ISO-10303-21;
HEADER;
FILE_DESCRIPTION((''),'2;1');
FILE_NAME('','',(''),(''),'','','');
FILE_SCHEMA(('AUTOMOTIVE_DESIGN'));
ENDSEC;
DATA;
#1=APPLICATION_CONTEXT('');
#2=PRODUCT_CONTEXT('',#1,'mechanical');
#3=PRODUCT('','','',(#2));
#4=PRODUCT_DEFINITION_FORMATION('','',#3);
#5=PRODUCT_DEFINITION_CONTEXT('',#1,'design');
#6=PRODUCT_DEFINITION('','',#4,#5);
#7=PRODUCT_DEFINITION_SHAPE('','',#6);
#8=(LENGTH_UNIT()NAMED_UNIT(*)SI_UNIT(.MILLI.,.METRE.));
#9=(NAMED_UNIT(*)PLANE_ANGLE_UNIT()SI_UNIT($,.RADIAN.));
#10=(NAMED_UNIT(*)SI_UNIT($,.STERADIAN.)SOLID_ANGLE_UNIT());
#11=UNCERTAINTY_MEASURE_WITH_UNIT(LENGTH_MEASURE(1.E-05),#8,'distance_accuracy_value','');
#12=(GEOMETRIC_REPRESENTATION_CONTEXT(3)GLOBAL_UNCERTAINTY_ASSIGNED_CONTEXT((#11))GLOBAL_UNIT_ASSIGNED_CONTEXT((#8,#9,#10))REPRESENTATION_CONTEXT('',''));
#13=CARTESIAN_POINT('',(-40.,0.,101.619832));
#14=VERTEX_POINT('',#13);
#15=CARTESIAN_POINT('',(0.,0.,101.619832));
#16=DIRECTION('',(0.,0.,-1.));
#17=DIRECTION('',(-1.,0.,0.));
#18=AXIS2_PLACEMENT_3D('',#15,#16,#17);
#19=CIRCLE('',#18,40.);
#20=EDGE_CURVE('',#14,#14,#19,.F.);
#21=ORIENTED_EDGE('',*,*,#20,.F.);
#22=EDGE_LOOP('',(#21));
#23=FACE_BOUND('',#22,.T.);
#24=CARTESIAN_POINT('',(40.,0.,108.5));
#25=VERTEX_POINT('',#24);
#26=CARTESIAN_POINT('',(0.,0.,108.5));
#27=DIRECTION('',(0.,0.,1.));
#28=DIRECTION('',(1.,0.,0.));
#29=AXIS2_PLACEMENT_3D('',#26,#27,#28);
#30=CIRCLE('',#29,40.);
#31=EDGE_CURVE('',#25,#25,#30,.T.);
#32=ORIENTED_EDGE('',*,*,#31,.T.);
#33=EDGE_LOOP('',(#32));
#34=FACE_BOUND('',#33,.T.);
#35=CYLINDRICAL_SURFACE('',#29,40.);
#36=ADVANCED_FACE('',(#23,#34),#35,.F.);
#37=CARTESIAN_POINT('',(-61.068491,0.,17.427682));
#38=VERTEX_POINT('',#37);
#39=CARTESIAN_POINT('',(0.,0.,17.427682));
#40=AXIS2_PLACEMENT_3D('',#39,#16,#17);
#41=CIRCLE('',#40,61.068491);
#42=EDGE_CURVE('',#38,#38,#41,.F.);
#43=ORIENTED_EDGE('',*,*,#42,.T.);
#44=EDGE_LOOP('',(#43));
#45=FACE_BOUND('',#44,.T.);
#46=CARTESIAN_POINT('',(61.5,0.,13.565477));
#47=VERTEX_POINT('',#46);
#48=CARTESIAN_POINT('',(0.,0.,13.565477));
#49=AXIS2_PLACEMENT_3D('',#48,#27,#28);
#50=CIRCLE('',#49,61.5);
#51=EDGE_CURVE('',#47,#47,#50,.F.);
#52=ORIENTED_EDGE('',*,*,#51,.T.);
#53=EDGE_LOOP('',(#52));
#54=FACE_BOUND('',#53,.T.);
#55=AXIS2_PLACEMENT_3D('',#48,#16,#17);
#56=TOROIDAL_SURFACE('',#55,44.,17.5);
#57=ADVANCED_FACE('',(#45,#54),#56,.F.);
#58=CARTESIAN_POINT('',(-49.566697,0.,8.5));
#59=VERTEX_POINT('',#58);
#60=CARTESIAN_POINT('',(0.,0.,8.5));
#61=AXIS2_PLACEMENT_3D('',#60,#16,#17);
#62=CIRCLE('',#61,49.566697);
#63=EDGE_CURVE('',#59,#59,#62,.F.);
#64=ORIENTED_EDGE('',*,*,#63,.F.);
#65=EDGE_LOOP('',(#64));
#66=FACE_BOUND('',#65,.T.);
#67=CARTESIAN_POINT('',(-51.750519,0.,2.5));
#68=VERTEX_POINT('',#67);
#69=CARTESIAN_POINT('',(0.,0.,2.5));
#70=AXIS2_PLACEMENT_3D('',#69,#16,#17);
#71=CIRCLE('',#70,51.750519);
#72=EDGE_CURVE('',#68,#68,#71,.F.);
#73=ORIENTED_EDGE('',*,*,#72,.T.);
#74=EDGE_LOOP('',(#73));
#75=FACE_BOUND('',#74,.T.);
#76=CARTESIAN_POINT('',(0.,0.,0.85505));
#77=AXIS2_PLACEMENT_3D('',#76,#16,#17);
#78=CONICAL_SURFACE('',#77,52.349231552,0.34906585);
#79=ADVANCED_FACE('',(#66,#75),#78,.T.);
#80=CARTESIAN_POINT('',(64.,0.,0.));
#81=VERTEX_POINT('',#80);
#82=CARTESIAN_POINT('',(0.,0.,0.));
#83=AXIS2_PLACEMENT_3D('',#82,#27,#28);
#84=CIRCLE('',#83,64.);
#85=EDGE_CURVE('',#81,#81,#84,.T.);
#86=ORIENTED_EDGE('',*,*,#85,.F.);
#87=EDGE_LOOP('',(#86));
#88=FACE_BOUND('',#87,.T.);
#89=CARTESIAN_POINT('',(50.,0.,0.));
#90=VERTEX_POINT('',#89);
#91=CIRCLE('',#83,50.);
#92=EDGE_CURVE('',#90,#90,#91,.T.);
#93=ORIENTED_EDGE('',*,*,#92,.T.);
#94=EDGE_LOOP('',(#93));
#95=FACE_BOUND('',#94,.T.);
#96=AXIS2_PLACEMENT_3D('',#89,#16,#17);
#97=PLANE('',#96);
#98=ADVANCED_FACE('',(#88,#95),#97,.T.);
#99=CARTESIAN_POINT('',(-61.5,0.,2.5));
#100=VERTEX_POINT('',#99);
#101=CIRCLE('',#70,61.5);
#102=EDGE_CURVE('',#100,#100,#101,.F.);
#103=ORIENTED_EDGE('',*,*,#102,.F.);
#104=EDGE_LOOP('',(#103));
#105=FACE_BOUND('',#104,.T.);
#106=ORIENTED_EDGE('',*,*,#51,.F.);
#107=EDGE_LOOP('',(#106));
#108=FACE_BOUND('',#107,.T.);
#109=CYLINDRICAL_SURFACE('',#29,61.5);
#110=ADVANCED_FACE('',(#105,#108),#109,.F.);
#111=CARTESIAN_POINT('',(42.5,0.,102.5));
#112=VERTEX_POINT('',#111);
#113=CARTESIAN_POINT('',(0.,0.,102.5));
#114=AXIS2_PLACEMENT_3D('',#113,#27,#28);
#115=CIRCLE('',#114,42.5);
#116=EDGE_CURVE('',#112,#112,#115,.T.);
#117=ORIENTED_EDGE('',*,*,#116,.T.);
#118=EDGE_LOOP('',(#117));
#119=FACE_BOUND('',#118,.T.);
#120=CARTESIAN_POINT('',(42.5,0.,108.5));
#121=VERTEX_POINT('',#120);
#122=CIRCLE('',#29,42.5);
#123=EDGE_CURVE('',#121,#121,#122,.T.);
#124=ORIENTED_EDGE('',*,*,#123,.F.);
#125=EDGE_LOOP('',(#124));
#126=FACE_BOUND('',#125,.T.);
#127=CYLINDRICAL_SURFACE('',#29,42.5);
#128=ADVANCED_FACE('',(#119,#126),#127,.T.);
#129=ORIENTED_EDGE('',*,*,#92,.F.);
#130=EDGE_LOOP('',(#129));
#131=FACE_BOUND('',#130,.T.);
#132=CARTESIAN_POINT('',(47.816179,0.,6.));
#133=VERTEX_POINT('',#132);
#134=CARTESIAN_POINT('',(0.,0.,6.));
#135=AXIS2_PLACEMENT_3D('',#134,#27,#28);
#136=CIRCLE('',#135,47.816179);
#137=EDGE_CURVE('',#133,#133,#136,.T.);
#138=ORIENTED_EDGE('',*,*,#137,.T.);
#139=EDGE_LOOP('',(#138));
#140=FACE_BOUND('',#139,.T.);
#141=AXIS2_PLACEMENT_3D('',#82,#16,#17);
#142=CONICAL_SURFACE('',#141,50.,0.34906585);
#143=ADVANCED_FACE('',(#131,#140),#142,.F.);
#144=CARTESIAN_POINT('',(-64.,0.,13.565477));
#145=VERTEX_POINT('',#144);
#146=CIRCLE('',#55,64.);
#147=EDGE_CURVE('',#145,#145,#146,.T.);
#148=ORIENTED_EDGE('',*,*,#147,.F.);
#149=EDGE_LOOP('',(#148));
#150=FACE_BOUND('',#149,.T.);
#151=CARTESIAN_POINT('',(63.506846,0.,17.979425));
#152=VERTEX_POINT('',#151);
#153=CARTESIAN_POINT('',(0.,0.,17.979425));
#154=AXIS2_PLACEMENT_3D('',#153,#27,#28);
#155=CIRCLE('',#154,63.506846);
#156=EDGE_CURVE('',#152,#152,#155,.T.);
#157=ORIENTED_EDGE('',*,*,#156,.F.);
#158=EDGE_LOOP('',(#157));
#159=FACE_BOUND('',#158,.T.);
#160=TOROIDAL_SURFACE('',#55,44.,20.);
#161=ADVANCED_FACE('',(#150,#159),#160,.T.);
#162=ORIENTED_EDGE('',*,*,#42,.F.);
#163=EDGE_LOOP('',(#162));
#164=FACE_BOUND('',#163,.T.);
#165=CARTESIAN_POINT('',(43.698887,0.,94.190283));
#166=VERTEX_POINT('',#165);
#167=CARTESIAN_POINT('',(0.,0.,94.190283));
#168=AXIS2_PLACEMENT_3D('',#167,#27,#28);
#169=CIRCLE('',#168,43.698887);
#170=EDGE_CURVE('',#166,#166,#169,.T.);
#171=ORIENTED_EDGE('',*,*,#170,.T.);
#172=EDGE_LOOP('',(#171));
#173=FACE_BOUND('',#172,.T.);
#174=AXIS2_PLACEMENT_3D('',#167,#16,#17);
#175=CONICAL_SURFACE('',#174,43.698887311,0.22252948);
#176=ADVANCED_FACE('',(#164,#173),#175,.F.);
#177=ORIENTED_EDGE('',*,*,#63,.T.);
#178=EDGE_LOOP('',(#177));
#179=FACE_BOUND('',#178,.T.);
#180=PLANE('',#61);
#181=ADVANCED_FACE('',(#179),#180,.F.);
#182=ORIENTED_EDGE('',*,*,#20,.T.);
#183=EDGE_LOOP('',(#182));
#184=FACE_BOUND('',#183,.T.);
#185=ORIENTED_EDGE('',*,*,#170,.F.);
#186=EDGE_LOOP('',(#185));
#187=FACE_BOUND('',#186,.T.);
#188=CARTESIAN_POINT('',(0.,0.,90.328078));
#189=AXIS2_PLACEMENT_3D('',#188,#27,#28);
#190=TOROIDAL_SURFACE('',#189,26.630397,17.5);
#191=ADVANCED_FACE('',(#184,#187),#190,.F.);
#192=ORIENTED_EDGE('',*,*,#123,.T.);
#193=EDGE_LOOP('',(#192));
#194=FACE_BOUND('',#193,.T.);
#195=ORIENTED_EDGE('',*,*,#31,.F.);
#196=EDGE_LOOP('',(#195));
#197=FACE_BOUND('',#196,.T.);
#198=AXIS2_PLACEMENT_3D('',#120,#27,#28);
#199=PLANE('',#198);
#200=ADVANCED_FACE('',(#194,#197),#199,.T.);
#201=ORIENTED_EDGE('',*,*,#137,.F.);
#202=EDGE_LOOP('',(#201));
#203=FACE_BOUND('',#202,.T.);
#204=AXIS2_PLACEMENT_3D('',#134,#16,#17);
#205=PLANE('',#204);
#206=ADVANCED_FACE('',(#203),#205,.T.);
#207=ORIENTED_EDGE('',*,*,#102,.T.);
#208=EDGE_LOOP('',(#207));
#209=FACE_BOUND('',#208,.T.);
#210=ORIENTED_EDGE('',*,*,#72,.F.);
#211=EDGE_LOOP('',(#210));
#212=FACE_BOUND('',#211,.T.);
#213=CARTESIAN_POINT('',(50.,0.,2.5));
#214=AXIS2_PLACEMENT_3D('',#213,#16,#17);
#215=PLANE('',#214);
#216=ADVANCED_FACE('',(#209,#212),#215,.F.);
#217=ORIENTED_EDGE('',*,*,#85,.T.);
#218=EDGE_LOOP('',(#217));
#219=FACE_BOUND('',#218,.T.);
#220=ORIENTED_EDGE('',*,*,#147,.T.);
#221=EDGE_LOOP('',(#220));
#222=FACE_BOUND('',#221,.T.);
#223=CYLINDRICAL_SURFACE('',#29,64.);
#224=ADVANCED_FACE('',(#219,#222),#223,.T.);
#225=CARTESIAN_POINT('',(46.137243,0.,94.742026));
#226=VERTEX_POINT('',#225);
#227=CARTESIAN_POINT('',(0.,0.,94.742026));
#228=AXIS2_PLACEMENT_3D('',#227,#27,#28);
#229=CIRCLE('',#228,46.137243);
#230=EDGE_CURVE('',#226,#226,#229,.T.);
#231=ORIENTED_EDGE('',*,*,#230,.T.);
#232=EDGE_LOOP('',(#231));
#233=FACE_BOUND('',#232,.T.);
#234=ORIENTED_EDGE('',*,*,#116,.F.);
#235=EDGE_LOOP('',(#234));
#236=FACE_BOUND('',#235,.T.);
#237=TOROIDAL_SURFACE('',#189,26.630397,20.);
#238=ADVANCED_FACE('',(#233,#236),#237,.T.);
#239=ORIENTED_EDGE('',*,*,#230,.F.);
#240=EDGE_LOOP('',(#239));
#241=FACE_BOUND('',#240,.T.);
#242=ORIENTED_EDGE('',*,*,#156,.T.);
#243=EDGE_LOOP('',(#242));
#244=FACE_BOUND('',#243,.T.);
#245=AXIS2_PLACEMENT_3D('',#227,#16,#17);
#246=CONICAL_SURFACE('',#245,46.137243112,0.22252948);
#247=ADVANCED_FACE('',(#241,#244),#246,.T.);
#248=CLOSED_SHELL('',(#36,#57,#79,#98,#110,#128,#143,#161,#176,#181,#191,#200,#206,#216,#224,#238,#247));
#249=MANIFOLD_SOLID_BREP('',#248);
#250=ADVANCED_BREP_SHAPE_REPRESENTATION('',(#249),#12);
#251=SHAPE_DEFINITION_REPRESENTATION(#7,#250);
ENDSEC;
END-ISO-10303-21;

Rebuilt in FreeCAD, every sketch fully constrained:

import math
import FreeCAD as App
import Part
import Sketcher
from FreeCAD import Vector
Q = App.Units.Quantity


def edges_at(feature, points):
    """Names of the edges that pass closest to the given points."""
    edges = feature.Shape.Edges
    near = lambda p: min(range(len(edges)), key=lambda i: edges[i].distToShape(Part.Vertex(*p))[0])
    return sorted({f"Edge{near(p) + 1}" for p in points})


def faces_at(feature, points):
    """Names of the faces that lie closest to the given points."""
    faces = feature.Shape.Faces
    near = lambda p: min(range(len(faces)), key=lambda i: faces[i].distToShape(Part.Vertex(*p))[0])
    return sorted({f"Face{near(p) + 1}" for p in points})

doc = App.newDocument("Part")
body = doc.addObject("PartDesign::Body", "Body")

sketch1 = body.newObject("Sketcher::SketchObject", "Sketch")
sketch1.AttachmentSupport = (doc.getObject("XZ_Plane"), [""])
sketch1.MapMode = "FlatFace"
sketch1.addGeometry([
    Part.LineSegment(Vector(0, 6, 0), Vector(0, 108, 0)),
    Part.LineSegment(Vector(0, 108, 0), Vector(42, 108, 0)),
    Part.LineSegment(Vector(42, 108, 0), Vector(42, 102, 0)),
    Part.ArcOfCircle(Part.Circle(Vector(27, 90, 0), Vector(0, 0, 1), 20), math.radians(13), math.radians(37)),
    Part.LineSegment(Vector(46, 95, 0), Vector(64, 16, 0)),
    Part.LineSegment(Vector(64, 16, 0), Vector(64, 0, 0)),
    Part.LineSegment(Vector(64, 0, 0), Vector(50, 0, 0)),
    Part.LineSegment(Vector(50, 0, 0), Vector(48, 6, 0)),
    Part.LineSegment(Vector(48, 6, 0), Vector(0, 6, 0)),
], False)
sketch1.addConstraint([
    Sketcher.Constraint("Coincident", 0, 2, 1, 1),
    Sketcher.Constraint("Coincident", 1, 2, 2, 1),
    Sketcher.Constraint("Coincident", 2, 2, 3, 2),
    Sketcher.Constraint("Tangent", 3, 1, 4, 1),
    Sketcher.Constraint("Coincident", 4, 2, 5, 1),
    Sketcher.Constraint("Coincident", 5, 2, 6, 1),
    Sketcher.Constraint("Coincident", 6, 2, 7, 1),
    Sketcher.Constraint("Coincident", 7, 2, 8, 1),
    Sketcher.Constraint("Coincident", 8, 2, 0, 1),
    Sketcher.Constraint("Vertical", 0),
    Sketcher.Constraint("Horizontal", 1),
    Sketcher.Constraint("Vertical", 2),
    Sketcher.Constraint("Vertical", 5),
    Sketcher.Constraint("Horizontal", 6),
    Sketcher.Constraint("Horizontal", 8),
    Sketcher.Constraint("PointOnObject", 0, 2, -2),
    Sketcher.Constraint("PointOnObject", 5, 2, -1),
    Sketcher.Constraint("Radius", 3, Q("20 mm")),
    Sketcher.Constraint("DistanceX", 6, 2, 6, 1, Q("14 mm")),
    Sketcher.Constraint("DistanceY", 2, 2, 2, 1, Q("6 mm")),
    Sketcher.Constraint("Angle", 7, Q("110 deg")),
    Sketcher.Constraint("DistanceX", 1, 1, 1, 2, Q("42.5 mm")),
    Sketcher.Constraint("DistanceY", 0, 1, 0, 2, Q("102.5 mm")),
    Sketcher.Constraint("DistanceY", 5, 2, 5, 1, Q("15.8 mm")),
    Sketcher.Constraint("DistanceX", -1, 1, 4, 2, Q("64 mm")),
    Sketcher.Constraint("DistanceY", -1, 1, 7, 2, Q("6 mm")),
    Sketcher.Constraint("Angle", 4, Q("-77.25 deg")),
])
revolution = body.newObject("PartDesign::Revolution", "Revolution")
revolution.Profile = sketch1
revolution.ReferenceAxis = (sketch1, ["V_Axis"])
revolution.Angle = 360
doc.recompute()

fillet = body.newObject("PartDesign::Fillet", "Fillet")
fillet.Base = (revolution, edges_at(revolution, [(-64, 0, 15.8)]))
fillet.Radius = 20
doc.recompute()

thickness = body.newObject("PartDesign::Thickness", "Thickness")
thickness.Base = (fillet, faces_at(fillet, [(0, 0, 108.5)]))
thickness.Value = 2.5
thickness.Reversed = True
thickness.Join = "Intersection"

doc.recompute()
